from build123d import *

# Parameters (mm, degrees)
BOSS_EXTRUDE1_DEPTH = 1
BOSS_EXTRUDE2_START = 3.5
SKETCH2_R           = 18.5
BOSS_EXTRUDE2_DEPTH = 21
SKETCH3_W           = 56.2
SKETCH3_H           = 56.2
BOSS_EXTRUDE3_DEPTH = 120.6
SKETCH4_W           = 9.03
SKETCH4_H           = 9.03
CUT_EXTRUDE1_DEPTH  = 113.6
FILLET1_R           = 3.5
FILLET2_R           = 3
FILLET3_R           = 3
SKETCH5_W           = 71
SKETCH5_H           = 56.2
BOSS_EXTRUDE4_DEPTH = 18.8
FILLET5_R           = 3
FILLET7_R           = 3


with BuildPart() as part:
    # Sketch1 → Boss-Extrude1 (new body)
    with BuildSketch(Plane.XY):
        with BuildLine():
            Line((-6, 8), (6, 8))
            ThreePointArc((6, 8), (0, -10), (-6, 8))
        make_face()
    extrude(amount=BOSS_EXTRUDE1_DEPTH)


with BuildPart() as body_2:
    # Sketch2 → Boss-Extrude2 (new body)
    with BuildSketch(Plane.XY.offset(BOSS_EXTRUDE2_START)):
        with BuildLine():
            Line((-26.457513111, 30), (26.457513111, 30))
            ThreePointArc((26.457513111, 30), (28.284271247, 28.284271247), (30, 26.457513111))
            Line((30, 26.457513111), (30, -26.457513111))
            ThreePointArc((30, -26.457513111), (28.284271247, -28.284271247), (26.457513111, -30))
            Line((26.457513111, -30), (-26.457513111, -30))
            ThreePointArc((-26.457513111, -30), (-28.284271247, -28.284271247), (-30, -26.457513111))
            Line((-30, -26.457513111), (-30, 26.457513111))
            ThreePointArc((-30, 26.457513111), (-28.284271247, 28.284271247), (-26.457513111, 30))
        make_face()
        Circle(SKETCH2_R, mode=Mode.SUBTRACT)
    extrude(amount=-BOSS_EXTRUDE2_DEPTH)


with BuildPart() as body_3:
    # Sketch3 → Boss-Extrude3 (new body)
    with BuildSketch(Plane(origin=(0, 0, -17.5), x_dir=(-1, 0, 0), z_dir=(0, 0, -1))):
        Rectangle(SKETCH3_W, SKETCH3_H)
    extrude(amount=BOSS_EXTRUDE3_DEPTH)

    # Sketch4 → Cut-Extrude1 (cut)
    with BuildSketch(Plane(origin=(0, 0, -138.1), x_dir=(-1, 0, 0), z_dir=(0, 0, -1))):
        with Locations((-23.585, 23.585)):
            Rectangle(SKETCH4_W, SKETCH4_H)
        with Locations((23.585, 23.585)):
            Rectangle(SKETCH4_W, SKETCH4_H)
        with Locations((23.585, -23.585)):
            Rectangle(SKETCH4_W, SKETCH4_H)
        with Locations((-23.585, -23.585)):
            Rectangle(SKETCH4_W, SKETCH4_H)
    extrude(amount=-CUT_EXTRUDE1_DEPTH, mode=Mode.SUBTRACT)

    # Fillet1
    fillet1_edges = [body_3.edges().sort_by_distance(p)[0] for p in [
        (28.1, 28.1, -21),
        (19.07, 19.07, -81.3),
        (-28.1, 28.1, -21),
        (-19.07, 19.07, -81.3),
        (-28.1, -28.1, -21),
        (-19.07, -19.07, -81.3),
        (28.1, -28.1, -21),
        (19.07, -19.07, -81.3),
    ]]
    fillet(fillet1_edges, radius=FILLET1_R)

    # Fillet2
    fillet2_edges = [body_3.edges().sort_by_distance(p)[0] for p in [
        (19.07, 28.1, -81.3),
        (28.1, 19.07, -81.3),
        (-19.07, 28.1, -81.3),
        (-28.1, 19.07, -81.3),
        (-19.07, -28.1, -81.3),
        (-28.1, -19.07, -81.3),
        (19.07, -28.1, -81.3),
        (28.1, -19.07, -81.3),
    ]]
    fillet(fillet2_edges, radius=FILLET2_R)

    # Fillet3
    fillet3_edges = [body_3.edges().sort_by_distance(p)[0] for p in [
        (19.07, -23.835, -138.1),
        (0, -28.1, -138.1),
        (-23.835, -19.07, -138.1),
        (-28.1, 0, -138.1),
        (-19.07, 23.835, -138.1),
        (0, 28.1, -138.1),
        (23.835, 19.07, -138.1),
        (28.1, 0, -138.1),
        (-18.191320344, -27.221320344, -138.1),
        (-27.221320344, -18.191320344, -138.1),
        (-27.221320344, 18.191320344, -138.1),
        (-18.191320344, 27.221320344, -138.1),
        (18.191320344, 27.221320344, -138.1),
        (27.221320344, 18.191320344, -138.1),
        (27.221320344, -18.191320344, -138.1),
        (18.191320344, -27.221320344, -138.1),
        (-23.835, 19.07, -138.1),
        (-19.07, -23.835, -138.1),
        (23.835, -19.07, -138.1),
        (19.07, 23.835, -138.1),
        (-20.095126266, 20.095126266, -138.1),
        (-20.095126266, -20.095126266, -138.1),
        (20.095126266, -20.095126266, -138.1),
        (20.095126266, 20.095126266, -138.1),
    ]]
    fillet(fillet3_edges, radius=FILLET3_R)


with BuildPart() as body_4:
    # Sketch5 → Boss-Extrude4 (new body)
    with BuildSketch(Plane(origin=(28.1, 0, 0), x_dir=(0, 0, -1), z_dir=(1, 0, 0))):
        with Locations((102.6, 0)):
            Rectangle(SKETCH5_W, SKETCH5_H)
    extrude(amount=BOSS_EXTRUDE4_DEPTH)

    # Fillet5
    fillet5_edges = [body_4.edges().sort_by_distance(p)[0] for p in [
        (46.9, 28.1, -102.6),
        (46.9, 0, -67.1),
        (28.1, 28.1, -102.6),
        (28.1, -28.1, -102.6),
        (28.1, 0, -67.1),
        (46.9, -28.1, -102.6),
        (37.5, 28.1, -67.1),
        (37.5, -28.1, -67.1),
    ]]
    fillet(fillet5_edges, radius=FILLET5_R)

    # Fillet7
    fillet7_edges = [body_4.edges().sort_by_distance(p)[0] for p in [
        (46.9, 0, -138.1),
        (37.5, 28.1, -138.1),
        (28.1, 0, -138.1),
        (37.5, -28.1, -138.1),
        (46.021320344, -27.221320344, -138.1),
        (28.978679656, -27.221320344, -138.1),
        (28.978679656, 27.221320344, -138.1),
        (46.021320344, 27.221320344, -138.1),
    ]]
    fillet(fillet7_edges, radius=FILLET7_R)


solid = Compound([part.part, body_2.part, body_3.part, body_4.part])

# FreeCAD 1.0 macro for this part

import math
import FreeCAD as App
import Part
import Sketcher


def edges_at(feature, points):
    """Names of the edges that pass closest to the given points."""
    edges = feature.Shape.Edges
    near = lambda p: min(range(len(edges)), key=lambda i: edges[i].distToShape(Part.Vertex(*p))[0])
    return sorted({f"Edge{near(p) + 1}" for p in points})

doc = App.newDocument("Part")
body = doc.addObject("PartDesign::Body", "Body")

# Sketch on XY plane
sketch1 = body.newObject("Sketcher::SketchObject", "Sketch")
sketch1.AttachmentSupport = (doc.getObject("XY_Plane"), [""])
sketch1.MapMode = "FlatFace"
sketch1.addGeometry([
    Part.LineSegment(App.Vector(6, 8, 0), App.Vector(-6, 8, 0)),
    Part.ArcOfCircle(Part.Circle(App.Vector(0, 0, 0), App.Vector(0, 0, 1), 10), math.radians(126.869898), math.radians(413.130102)),
], False)
sketch1.addConstraint([
    Sketcher.Constraint("Coincident", 0, 1, 1, 2),
    Sketcher.Constraint("Coincident", 1, 1, 0, 2),
    Sketcher.Constraint("Horizontal", 0),
    Sketcher.Constraint("Coincident", 1, 3, -1, 1),
    Sketcher.Constraint("Radius", 1, 10.0),
    Sketcher.Constraint("DistanceX", 0, 2, 0, 1, 12.0),
])
pad1 = body.newObject("PartDesign::Pad", "Pad")
pad1.Profile = sketch1
pad1.Length = 1
body2 = doc.addObject("PartDesign::Body", "Body001")

# Sketch on XY plane
sketch2 = body2.newObject("Sketcher::SketchObject", "Sketch001")
sketch2.AttachmentSupport = (doc.getObject("XY_Plane001"), [""])
sketch2.MapMode = "FlatFace"
sketch2.AttachmentOffset = App.Placement(App.Vector(0, 0, 3.5), App.Rotation())
sketch2.addGeometry([
    Part.LineSegment(App.Vector(26.457513, 30, 0), App.Vector(-26.457513, 30, 0)),  # 0
    Part.ArcOfCircle(Part.Circle(App.Vector(0, 0, 0), App.Vector(0, 0, 1), 40), math.radians(131.409622), math.radians(138.590378)),  # 1
    Part.LineSegment(App.Vector(-30, 26.457513, 0), App.Vector(-30, -26.457513, 0)),  # 2
    Part.ArcOfCircle(Part.Circle(App.Vector(0, 0, 0), App.Vector(0, 0, 1), 40), math.radians(-138.590378), math.radians(-131.409622)),  # 3
    Part.LineSegment(App.Vector(-26.457513, -30, 0), App.Vector(26.457513, -30, 0)),  # 4
    Part.ArcOfCircle(Part.Circle(App.Vector(0, 0, 0), App.Vector(0, 0, 1), 40), math.radians(-48.590378), math.radians(-41.409622)),  # 5
    Part.LineSegment(App.Vector(30, -26.457513, 0), App.Vector(30, 26.457513, 0)),  # 6
    Part.ArcOfCircle(Part.Circle(App.Vector(0, 0, 0), App.Vector(0, 0, 1), 40), math.radians(41.409622), math.radians(48.590378)),  # 7
    Part.Circle(App.Vector(0, 0, 0), App.Vector(0, 0, 1), 18.5),  # 8
], False)
sketch2.addConstraint([
    Sketcher.Constraint("Coincident", 0, 2, 1, 1),
    Sketcher.Constraint("Coincident", 1, 2, 2, 1),
    Sketcher.Constraint("Coincident", 2, 2, 3, 1),
    Sketcher.Constraint("Coincident", 3, 2, 4, 1),
    Sketcher.Constraint("Coincident", 4, 2, 5, 1),
    Sketcher.Constraint("Coincident", 5, 2, 6, 1),
    Sketcher.Constraint("Coincident", 6, 2, 7, 1),
    Sketcher.Constraint("Coincident", 7, 2, 0, 1),
    Sketcher.Constraint("Horizontal", 0),
    Sketcher.Constraint("Vertical", 2),
    Sketcher.Constraint("Horizontal", 4),
    Sketcher.Constraint("Vertical", 6),
    Sketcher.Constraint("Coincident", 1, 3, -1, 1),
    Sketcher.Constraint("Coincident", 3, 3, -1, 1),
    Sketcher.Constraint("Coincident", 5, 3, -1, 1),
    Sketcher.Constraint("Coincident", 7, 3, -1, 1),
    Sketcher.Constraint("Coincident", 8, 3, -1, 1),
    Sketcher.Constraint("Equal", 1, 3),
    Sketcher.Constraint("Equal", 3, 5),
    Sketcher.Constraint("Equal", 5, 7),
    Sketcher.Constraint("Horizontal", 2, 2, 5, 2),
    Sketcher.Constraint("Vertical", 0, 2, 3, 2),
    Sketcher.Constraint("Equal", 4, 2),
    Sketcher.Constraint("Diameter", 8, 37.0),
    Sketcher.Constraint("Radius", 1, 40.0),
    Sketcher.Constraint("DistanceY", -1, 1, 0, 2, 30.0),
])
pad2 = body2.newObject("PartDesign::Pad", "Pad001")
pad2.Profile = sketch2
pad2.Length = 21
pad2.Reversed = True
body3 = doc.addObject("PartDesign::Body", "Body002")

# Sketch on XY plane
sketch3 = body3.newObject("Sketcher::SketchObject", "Sketch002")
sketch3.AttachmentSupport = (doc.getObject("XY_Plane002"), [""])
sketch3.MapMode = "FlatFace"
sketch3.AttachmentOffset = App.Placement(App.Vector(0, 0, -17.5), App.Rotation())
sketch3.addGeometry([
    Part.LineSegment(App.Vector(28.1, 28.1, 0), App.Vector(28.1, -28.1, 0)),
    Part.LineSegment(App.Vector(28.1, -28.1, 0), App.Vector(-28.1, -28.1, 0)),
    Part.LineSegment(App.Vector(-28.1, -28.1, 0), App.Vector(-28.1, 28.1, 0)),
    Part.LineSegment(App.Vector(-28.1, 28.1, 0), App.Vector(28.1, 28.1, 0)),
], False)
sketch3.addConstraint([
    Sketcher.Constraint("Coincident", 0, 2, 1, 1),
    Sketcher.Constraint("Coincident", 1, 2, 2, 1),
    Sketcher.Constraint("Coincident", 2, 2, 3, 1),
    Sketcher.Constraint("Coincident", 3, 2, 0, 1),
    Sketcher.Constraint("Vertical", 0),
    Sketcher.Constraint("Horizontal", 1),
    Sketcher.Constraint("Vertical", 2),
    Sketcher.Constraint("Horizontal", 3),
    Sketcher.Constraint("Symmetric", 0, 2, 2, 2, -1, 1),
    Sketcher.Constraint("Equal", 3, 0),
    Sketcher.Constraint("DistanceX", 1, 2, 1, 1, 56.2),
])
pad3 = body3.newObject("PartDesign::Pad", "Pad002")
pad3.Profile = sketch3
pad3.Length = 120.6
pad3.Reversed = True

# Sketch on XY plane
sketch4 = body3.newObject("Sketcher::SketchObject", "Sketch003")
sketch4.AttachmentSupport = (doc.getObject("XY_Plane002"), [""])
sketch4.MapMode = "FlatFace"
sketch4.AttachmentOffset = App.Placement(App.Vector(0, 0, -138.1), App.Rotation())
sketch4.addGeometry([
    Part.LineSegment(App.Vector(28.1, 28.1, 0), App.Vector(28.1, 19.07, 0)),  # 0
    Part.LineSegment(App.Vector(28.1, 19.07, 0), App.Vector(19.07, 19.07, 0)),  # 1
    Part.LineSegment(App.Vector(19.07, 19.07, 0), App.Vector(19.07, 28.1, 0)),  # 2
    Part.LineSegment(App.Vector(19.07, 28.1, 0), App.Vector(28.1, 28.1, 0)),  # 3
    Part.LineSegment(App.Vector(-19.07, 28.1, 0), App.Vector(-19.07, 19.07, 0)),  # 4
    Part.LineSegment(App.Vector(-19.07, 19.07, 0), App.Vector(-28.1, 19.07, 0)),  # 5
    Part.LineSegment(App.Vector(-28.1, 19.07, 0), App.Vector(-28.1, 28.1, 0)),  # 6
    Part.LineSegment(App.Vector(-28.1, 28.1, 0), App.Vector(-19.07, 28.1, 0)),  # 7
    Part.LineSegment(App.Vector(-19.07, -19.07, 0), App.Vector(-19.07, -28.1, 0)),  # 8
    Part.LineSegment(App.Vector(-19.07, -28.1, 0), App.Vector(-28.1, -28.1, 0)),  # 9
    Part.LineSegment(App.Vector(-28.1, -28.1, 0), App.Vector(-28.1, -19.07, 0)),  # 10
    Part.LineSegment(App.Vector(-28.1, -19.07, 0), App.Vector(-19.07, -19.07, 0)),  # 11
    Part.LineSegment(App.Vector(28.1, -19.07, 0), App.Vector(28.1, -28.1, 0)),  # 12
    Part.LineSegment(App.Vector(28.1, -28.1, 0), App.Vector(19.07, -28.1, 0)),  # 13
    Part.LineSegment(App.Vector(19.07, -28.1, 0), App.Vector(19.07, -19.07, 0)),  # 14
    Part.LineSegment(App.Vector(19.07, -19.07, 0), App.Vector(28.1, -19.07, 0)),  # 15
], False)
sketch4.addConstraint([
    Sketcher.Constraint("Coincident", 0, 2, 1, 1),
    Sketcher.Constraint("Coincident", 1, 2, 2, 1),
    Sketcher.Constraint("Coincident", 2, 2, 3, 1),
    Sketcher.Constraint("Coincident", 3, 2, 0, 1),
    Sketcher.Constraint("Coincident", 4, 2, 5, 1),
    Sketcher.Constraint("Coincident", 5, 2, 6, 1),
    Sketcher.Constraint("Coincident", 6, 2, 7, 1),
    Sketcher.Constraint("Coincident", 7, 2, 4, 1),
    Sketcher.Constraint("Coincident", 8, 2, 9, 1),
    Sketcher.Constraint("Coincident", 9, 2, 10, 1),
    Sketcher.Constraint("Coincident", 10, 2, 11, 1),
    Sketcher.Constraint("Coincident", 11, 2, 8, 1),
    Sketcher.Constraint("Coincident", 12, 2, 13, 1),
    Sketcher.Constraint("Coincident", 13, 2, 14, 1),
    Sketcher.Constraint("Coincident", 14, 2, 15, 1),
    Sketcher.Constraint("Coincident", 15, 2, 12, 1),
    Sketcher.Constraint("Vertical", 0),
    Sketcher.Constraint("Horizontal", 1),
    Sketcher.Constraint("Vertical", 2),
    Sketcher.Constraint("Horizontal", 3),
    Sketcher.Constraint("Vertical", 4),
    Sketcher.Constraint("Horizontal", 5),
    Sketcher.Constraint("Vertical", 6),
    Sketcher.Constraint("Horizontal", 7),
    Sketcher.Constraint("Vertical", 8),
    Sketcher.Constraint("Horizontal", 9),
    Sketcher.Constraint("Vertical", 10),
    Sketcher.Constraint("Horizontal", 11),
    Sketcher.Constraint("Vertical", 12),
    Sketcher.Constraint("Horizontal", 13),
    Sketcher.Constraint("Vertical", 14),
    Sketcher.Constraint("Horizontal", 15),
    Sketcher.Constraint("Symmetric", 2, 2, 8, 2, -1, 1),
    Sketcher.Constraint("Symmetric", 0, 2, 10, 2, -1, 1),
    Sketcher.Constraint("Symmetric", 6, 2, 12, 2, -1, 1),
    Sketcher.Constraint("Symmetric", 4, 2, 14, 2, -1, 1),
    Sketcher.Constraint("Symmetric", 1, 2, 4, 2, -2),
    Sketcher.Constraint("Symmetric", 3, 2, 6, 2, -2),
    Sketcher.Constraint("Equal", 15, 0),
    Sketcher.Constraint("DistanceX", 1, 2, 1, 1, 9.03),
    Sketcher.Constraint("DistanceX", -1, 1, 0, 2, 28.1),
    Sketcher.Constraint("DistanceY", -1, 1, 2, 2, 28.1),
])
pocket1 = body3.newObject("PartDesign::Pocket", "Pocket")
pocket1.Profile = sketch4
pocket1.Length = 113.6
pocket1.Reversed = True
doc.recompute()

fillet = body3.newObject("PartDesign::Fillet", "Fillet")
fillet.Base = (pocket1, edges_at(pocket1, [
    (28.1, 28.1, -21),
    (19.07, 19.07, -81.3),
    (-28.1, 28.1, -21),
    (-19.07, 19.07, -81.3),
    (-28.1, -28.1, -21),
    (-19.07, -19.07, -81.3),
    (28.1, -28.1, -21),
    (19.07, -19.07, -81.3),
]))
fillet.Radius = 3.5
doc.recompute()

fillet2 = body3.newObject("PartDesign::Fillet", "Fillet001")
fillet2.Base = (fillet, edges_at(fillet, [
    (19.07, 28.1, -81.3),
    (28.1, 19.07, -81.3),
    (-19.07, 28.1, -81.3),
    (-28.1, 19.07, -81.3),
    (-19.07, -28.1, -81.3),
    (-28.1, -19.07, -81.3),
    (19.07, -28.1, -81.3),
    (28.1, -19.07, -81.3),
]))
fillet2.Radius = 3
doc.recompute()

fillet3 = body3.newObject("PartDesign::Fillet", "Fillet002")
fillet3.Base = (fillet2, edges_at(fillet2, [
    (19.07, -23.835, -138.1),
    (0, -28.1, -138.1),
    (-23.835, -19.07, -138.1),
    (-28.1, 0, -138.1),
    (-19.07, 23.835, -138.1),
    (0, 28.1, -138.1),
    (23.835, 19.07, -138.1),
    (28.1, 0, -138.1),
    (-18.191, -27.221, -138.1),
    (-27.221, -18.191, -138.1),
    (-27.221, 18.191, -138.1),
    (-18.191, 27.221, -138.1),
    (18.191, 27.221, -138.1),
    (27.221, 18.191, -138.1),
    (27.221, -18.191, -138.1),
    (18.191, -27.221, -138.1),
    (-23.835, 19.07, -138.1),
    (-19.07, -23.835, -138.1),
    (23.835, -19.07, -138.1),
    (19.07, 23.835, -138.1),
    (-20.095, 20.095, -138.1),
    (-20.095, -20.095, -138.1),
    (20.095, -20.095, -138.1),
    (20.095, 20.095, -138.1),
]))
fillet3.Radius = 3
body4 = doc.addObject("PartDesign::Body", "Body003")

# Sketch on YZ plane
sketch5 = body4.newObject("Sketcher::SketchObject", "Sketch004")
sketch5.AttachmentSupport = (doc.getObject("YZ_Plane003"), [""])
sketch5.MapMode = "FlatFace"
sketch5.AttachmentOffset = App.Placement(App.Vector(0, 0, 28.1), App.Rotation())
sketch5.addGeometry([
    Part.LineSegment(App.Vector(28.1, -67.1, 0), App.Vector(-28.1, -67.1, 0)),
    Part.LineSegment(App.Vector(-28.1, -67.1, 0), App.Vector(-28.1, -138.1, 0)),
    Part.LineSegment(App.Vector(-28.1, -138.1, 0), App.Vector(28.1, -138.1, 0)),
    Part.LineSegment(App.Vector(28.1, -138.1, 0), App.Vector(28.1, -67.1, 0)),
], False)
sketch5.addConstraint([
    Sketcher.Constraint("Coincident", 0, 2, 1, 1),
    Sketcher.Constraint("Coincident", 1, 2, 2, 1),
    Sketcher.Constraint("Coincident", 2, 2, 3, 1),
    Sketcher.Constraint("Coincident", 3, 2, 0, 1),
    Sketcher.Constraint("Horizontal", 0),
    Sketcher.Constraint("Vertical", 1),
    Sketcher.Constraint("Horizontal", 2),
    Sketcher.Constraint("Vertical", 3),
    Sketcher.Constraint("DistanceY", 1, 2, 1, 1, 71.0),
    Sketcher.Constraint("DistanceX", 0, 2, 0, 1, 56.2),
    Sketcher.Constraint("DistanceX", 0, 2, -1, 1, 28.1),
    Sketcher.Constraint("DistanceY", 0, 2, -1, 1, 67.1),
])
pad4 = body4.newObject("PartDesign::Pad", "Pad003")
pad4.Profile = sketch5
pad4.Length = 18.8
doc.recompute()

fillet4 = body4.newObject("PartDesign::Fillet", "Fillet003")
fillet4.Base = (pad4, edges_at(pad4, [
    (46.9, 28.1, -102.6),
    (46.9, 0, -67.1),
    (28.1, 28.1, -102.6),
    (28.1, -28.1, -102.6),
    (28.1, 0, -67.1),
    (46.9, -28.1, -102.6),
    (37.5, 28.1, -67.1),
    (37.5, -28.1, -67.1),
]))
fillet4.Radius = 3
doc.recompute()

fillet5 = body4.newObject("PartDesign::Fillet", "Fillet004")
fillet5.Base = (fillet4, edges_at(fillet4, [
    (46.9, 0, -138.1),
    (37.5, 28.1, -138.1),
    (28.1, 0, -138.1),
    (37.5, -28.1, -138.1),
    (46.021, -27.221, -138.1),
    (28.979, -27.221, -138.1),
    (28.979, 27.221, -138.1),
    (46.021, 27.221, -138.1),
]))
fillet5.Radius = 3

doc.recompute()
